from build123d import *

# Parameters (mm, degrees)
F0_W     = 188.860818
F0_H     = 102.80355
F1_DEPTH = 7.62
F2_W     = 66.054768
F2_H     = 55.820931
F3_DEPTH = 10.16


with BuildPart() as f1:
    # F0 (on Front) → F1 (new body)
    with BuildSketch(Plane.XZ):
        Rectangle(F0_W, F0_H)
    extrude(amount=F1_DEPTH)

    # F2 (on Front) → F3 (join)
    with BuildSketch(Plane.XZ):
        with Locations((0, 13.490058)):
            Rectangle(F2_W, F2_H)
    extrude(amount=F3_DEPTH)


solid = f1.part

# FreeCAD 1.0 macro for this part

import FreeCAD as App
import Part
import Sketcher
Q = App.Units.Quantity

doc = App.newDocument("Part")
body = doc.addObject("PartDesign::Body", "Body")

# Sketch on XZ plane
sketch1 = body.newObject("Sketcher::SketchObject", "Sketch")
sketch1.AttachmentSupport = (doc.getObject("XZ_Plane"), [""])
sketch1.MapMode = "FlatFace"
sketch1.addGeometry([
    Part.LineSegment(App.Vector(-94.430409, 51.401775, 0), App.Vector(-94.430409, -51.401775, 0)),
    Part.LineSegment(App.Vector(-94.430409, -51.401775, 0), App.Vector(94.430409, -51.401775, 0)),
    Part.LineSegment(App.Vector(94.430409, -51.401775, 0), App.Vector(94.430409, 51.401775, 0)),
    Part.LineSegment(App.Vector(94.430409, 51.401775, 0), App.Vector(-94.430409, 51.401775, 0)),
], False)
sketch1.addConstraint([
    Sketcher.Constraint("Coincident", 0, 2, 1, 1),
    Sketcher.Constraint("Coincident", 1, 2, 2, 1),
    Sketcher.Constraint("Coincident", 2, 2, 3, 1),
    Sketcher.Constraint("Coincident", 3, 2, 0, 1),
    Sketcher.Constraint("Vertical", 0),
    Sketcher.Constraint("Horizontal", 1),
    Sketcher.Constraint("Vertical", 2),
    Sketcher.Constraint("Horizontal", 3),
    Sketcher.Constraint("Symmetric", 0, 2, 2, 2, -1, 1),
    Sketcher.Constraint("DistanceX", 1, 1, 1, 2, Q("188.860818 mm")),
    Sketcher.Constraint("DistanceY", 0, 2, 0, 1, Q("102.80355 mm")),
])
pad1 = body.newObject("PartDesign::Pad", "Pad")
pad1.Profile = sketch1
pad1.Length = Q("0.3 in")

# Sketch on XZ plane
sketch2 = body.newObject("Sketcher::SketchObject", "Sketch001")
sketch2.AttachmentSupport = (doc.getObject("XZ_Plane"), [""])
sketch2.MapMode = "FlatFace"
sketch2.addGeometry([
    Part.LineSegment(App.Vector(-33.027384, 41.400523, 0), App.Vector(-33.027384, -14.420407, 0)),
    Part.LineSegment(App.Vector(-33.027384, -14.420407, 0), App.Vector(33.027384, -14.420407, 0)),
    Part.LineSegment(App.Vector(33.027384, -14.420407, 0), App.Vector(33.027384, 41.400523, 0)),
    Part.LineSegment(App.Vector(33.027384, 41.400523, 0), App.Vector(-33.027384, 41.400523, 0)),
], False)
sketch2.addConstraint([
    Sketcher.Constraint("Coincident", 0, 2, 1, 1),
    Sketcher.Constraint("Coincident", 1, 2, 2, 1),
    Sketcher.Constraint("Coincident", 2, 2, 3, 1),
    Sketcher.Constraint("Coincident", 3, 2, 0, 1),
    Sketcher.Constraint("Vertical", 0),
    Sketcher.Constraint("Horizontal", 1),
    Sketcher.Constraint("Vertical", 2),
    Sketcher.Constraint("Horizontal", 3),
    Sketcher.Constraint("DistanceY", 0, 2, 0, 1, Q("55.820931 mm")),
    Sketcher.Constraint("DistanceX", 1, 1, 1, 2, Q("66.054768 mm")),
    Sketcher.Constraint("DistanceX", 0, 2, -1, 1, Q("33.027384 mm")),
    Sketcher.Constraint("DistanceY", 0, 2, -1, 1, Q("14.420407 mm")),
])
pad2 = body.newObject("PartDesign::Pad", "Pad001")
pad2.Profile = sketch2
pad2.Length = Q("0.4 in")

doc.recompute()
